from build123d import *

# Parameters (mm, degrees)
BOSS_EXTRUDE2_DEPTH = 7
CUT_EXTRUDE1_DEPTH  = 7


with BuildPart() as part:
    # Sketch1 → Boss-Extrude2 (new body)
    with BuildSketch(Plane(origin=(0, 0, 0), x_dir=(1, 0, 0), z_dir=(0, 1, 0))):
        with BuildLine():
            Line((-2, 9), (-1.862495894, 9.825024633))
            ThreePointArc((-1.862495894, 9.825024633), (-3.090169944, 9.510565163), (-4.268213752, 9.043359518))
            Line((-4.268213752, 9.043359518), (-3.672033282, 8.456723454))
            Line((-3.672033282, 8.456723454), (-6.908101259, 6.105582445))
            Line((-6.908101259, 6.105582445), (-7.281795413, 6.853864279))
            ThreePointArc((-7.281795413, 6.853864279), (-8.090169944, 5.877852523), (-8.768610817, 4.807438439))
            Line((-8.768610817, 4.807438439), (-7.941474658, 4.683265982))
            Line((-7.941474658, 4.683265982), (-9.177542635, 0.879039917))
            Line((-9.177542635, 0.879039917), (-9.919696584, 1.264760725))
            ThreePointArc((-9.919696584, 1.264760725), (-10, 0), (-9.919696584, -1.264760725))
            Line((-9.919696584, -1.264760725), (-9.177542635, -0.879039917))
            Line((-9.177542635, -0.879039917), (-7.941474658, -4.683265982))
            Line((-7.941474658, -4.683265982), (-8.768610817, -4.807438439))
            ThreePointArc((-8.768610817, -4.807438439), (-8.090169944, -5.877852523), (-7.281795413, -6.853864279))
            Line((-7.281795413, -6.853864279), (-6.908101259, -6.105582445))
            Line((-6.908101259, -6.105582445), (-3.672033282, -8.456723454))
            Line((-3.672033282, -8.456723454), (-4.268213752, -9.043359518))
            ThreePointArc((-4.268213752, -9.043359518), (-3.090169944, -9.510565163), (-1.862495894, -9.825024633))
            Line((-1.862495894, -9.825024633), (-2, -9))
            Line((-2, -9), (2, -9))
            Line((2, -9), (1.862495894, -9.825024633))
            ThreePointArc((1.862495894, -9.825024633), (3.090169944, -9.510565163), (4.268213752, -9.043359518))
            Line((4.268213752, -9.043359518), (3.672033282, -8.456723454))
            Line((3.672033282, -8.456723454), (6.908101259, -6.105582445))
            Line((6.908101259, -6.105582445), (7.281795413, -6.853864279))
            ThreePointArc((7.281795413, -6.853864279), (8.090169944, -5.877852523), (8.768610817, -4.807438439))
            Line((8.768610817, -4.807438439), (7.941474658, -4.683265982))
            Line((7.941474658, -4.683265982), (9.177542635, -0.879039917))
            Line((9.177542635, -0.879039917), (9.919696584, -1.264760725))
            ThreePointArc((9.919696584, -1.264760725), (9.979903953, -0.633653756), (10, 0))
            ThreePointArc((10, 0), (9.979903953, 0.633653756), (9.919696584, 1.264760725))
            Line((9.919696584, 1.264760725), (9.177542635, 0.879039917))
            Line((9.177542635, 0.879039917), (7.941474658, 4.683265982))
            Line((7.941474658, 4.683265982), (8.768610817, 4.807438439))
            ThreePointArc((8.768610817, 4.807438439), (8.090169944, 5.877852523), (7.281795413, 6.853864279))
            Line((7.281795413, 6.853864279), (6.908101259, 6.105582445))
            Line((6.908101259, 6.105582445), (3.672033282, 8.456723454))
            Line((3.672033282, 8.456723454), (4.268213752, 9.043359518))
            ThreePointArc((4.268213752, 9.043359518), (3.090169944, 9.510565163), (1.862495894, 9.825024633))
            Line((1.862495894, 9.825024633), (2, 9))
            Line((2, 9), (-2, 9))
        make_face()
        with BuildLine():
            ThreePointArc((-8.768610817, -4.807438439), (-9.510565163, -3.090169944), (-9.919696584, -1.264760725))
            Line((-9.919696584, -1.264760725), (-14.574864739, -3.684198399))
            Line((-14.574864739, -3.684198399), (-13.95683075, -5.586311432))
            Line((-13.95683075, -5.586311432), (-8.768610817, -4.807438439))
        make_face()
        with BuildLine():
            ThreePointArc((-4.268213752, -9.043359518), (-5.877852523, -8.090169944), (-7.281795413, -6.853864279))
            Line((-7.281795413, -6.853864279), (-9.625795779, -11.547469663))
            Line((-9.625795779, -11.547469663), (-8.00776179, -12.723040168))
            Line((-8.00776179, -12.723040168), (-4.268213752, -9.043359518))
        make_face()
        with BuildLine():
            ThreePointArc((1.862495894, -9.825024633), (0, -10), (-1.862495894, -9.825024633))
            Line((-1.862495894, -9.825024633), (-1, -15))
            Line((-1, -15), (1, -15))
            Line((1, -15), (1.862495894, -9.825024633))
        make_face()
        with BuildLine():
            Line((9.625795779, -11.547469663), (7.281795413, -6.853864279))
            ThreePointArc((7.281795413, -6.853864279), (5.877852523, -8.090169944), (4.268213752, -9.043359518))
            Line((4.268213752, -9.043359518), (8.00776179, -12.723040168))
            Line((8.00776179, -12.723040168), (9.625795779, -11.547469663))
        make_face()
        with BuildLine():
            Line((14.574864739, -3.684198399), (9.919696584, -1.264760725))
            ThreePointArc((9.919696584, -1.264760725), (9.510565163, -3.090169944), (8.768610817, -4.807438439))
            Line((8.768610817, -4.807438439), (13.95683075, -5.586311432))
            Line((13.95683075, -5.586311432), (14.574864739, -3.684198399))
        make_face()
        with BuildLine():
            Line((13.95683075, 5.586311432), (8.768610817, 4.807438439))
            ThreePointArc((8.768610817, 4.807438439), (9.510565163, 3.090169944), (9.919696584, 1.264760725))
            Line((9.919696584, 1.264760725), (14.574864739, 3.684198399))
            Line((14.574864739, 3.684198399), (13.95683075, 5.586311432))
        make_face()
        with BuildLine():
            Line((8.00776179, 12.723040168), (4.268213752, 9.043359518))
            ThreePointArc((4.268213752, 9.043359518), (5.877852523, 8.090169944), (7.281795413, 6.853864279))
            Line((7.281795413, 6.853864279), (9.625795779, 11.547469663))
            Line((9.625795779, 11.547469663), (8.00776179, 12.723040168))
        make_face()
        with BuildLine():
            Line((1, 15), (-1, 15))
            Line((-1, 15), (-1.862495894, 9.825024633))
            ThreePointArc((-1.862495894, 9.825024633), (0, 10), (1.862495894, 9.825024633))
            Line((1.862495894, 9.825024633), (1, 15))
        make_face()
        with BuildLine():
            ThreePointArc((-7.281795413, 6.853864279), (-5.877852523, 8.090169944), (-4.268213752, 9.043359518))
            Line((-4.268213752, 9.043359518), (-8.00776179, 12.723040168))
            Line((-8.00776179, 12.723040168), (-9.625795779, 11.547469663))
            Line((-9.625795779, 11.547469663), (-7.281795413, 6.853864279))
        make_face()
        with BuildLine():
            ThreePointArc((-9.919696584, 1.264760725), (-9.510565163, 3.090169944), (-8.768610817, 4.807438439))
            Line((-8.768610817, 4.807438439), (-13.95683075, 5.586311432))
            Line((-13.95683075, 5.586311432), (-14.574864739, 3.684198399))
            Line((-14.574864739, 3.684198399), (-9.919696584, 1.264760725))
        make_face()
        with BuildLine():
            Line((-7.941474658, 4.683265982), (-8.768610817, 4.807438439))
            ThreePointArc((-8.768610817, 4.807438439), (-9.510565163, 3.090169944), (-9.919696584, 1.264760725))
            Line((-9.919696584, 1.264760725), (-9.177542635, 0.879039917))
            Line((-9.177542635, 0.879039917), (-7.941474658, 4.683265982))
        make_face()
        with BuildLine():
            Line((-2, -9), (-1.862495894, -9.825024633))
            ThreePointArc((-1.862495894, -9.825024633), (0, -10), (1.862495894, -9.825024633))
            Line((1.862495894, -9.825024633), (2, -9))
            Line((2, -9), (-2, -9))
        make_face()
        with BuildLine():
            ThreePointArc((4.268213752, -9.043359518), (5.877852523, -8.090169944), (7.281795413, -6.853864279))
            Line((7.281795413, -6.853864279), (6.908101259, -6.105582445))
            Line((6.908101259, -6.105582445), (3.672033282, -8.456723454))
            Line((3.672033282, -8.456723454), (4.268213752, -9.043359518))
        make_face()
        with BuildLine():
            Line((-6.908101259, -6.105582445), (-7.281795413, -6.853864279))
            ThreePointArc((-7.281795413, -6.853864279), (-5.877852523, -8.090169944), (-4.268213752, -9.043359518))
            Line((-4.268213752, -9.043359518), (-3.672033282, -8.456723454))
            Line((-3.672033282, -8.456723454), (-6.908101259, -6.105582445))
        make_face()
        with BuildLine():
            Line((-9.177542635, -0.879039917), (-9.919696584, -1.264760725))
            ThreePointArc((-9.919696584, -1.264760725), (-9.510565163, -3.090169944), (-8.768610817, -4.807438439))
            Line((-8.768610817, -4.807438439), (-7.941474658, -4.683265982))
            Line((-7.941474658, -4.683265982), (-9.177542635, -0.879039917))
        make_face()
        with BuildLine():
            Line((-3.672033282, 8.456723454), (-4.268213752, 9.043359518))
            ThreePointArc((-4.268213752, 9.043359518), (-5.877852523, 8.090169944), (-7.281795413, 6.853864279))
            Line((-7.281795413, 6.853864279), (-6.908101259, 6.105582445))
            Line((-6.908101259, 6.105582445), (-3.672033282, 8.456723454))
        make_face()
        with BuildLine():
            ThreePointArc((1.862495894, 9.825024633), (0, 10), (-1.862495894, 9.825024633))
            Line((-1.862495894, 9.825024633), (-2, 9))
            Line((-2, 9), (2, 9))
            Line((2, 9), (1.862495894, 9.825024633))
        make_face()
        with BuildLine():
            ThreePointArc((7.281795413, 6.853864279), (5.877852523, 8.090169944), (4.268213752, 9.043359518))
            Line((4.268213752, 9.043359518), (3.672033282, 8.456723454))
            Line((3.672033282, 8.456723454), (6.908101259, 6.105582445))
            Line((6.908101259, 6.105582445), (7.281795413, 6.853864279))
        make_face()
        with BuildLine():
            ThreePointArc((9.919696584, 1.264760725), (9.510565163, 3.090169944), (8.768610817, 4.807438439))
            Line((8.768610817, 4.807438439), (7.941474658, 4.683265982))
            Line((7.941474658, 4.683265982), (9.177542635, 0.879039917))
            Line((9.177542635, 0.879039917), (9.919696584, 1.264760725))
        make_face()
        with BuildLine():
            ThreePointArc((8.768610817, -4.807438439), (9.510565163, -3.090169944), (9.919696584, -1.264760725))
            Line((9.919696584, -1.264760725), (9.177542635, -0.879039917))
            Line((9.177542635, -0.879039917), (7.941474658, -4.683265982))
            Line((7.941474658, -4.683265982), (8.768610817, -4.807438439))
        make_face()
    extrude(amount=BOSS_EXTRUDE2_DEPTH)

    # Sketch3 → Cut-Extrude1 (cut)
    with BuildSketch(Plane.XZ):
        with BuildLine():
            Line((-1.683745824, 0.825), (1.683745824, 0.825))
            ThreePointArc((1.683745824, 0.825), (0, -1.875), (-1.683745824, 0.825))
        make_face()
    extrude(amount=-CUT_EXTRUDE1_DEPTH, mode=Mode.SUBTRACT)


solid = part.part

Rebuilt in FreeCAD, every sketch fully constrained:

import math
import FreeCAD as App
import Part
import Sketcher
Q = App.Units.Quantity

doc = App.newDocument("Part")
params = doc.addObject("Spreadsheet::Sheet", "Params")
for row, (alias, value) in enumerate([
    ("sketch1_radius", "10 mm"),
    ("sketch1_width", "2 mm"),
    ("sketch1_length", "2 mm"),
    ("pad1_length", "7 mm"),
    ("pocket1_length", "7 mm"),
], start=1):
    params.set(f"A{row}", alias)
    params.set(f"B{row}", "=" + value)
    params.setAlias(f"B{row}", alias)

body = doc.addObject("PartDesign::Body", "Body")

# Sketch on XZ plane
sketch1 = body.newObject("Sketcher::SketchObject", "Sketch")
sketch1.AttachmentSupport = (doc.getObject("XZ_Plane"), [""])
sketch1.MapMode = "FlatFace"
sketch1.addGeometry([
    Part.ArcOfCircle(Part.Circle(App.Vector(0, 0, 0), App.Vector(0, 0, 1), 10), math.radians(-115.27), math.radians(-100.73)),  # 0
    Part.LineSegment(App.Vector(-4.3, -9, 0), App.Vector(-8, -12.7, 0)),  # 1
    Part.LineSegment(App.Vector(-8, -12.7, 0), App.Vector(-9.6, -11.5, 0)),  # 2
    Part.LineSegment(App.Vector(-9.6, -11.5, 0), App.Vector(-7.3, -6.9, 0)),  # 3
    Part.ArcOfCircle(Part.Circle(App.Vector(0, 0, 0), App.Vector(0, 0, 1), 10), math.radians(-151.27), math.radians(-136.73)),  # 4
    Part.LineSegment(App.Vector(-8.8, -4.8, 0), App.Vector(-14, -5.6, 0)),  # 5
    Part.LineSegment(App.Vector(-14, -5.6, 0), App.Vector(-14.6, -3.7, 0)),  # 6
    Part.LineSegment(App.Vector(-14.6, -3.7, 0), App.Vector(-9.9, -1.3, 0)),  # 7
    Part.ArcOfCircle(Part.Circle(App.Vector(0, 0, 0), App.Vector(0, 0, 1), 10), math.radians(172.73), math.radians(187.27)),  # 8
    Part.LineSegment(App.Vector(-9.9, 1.3, 0), App.Vector(-14.6, 3.7, 0)),  # 9
    Part.LineSegment(App.Vector(-14.6, 3.7, 0), App.Vector(-14, 5.6, 0)),  # 10
    Part.LineSegment(App.Vector(-14, 5.6, 0), App.Vector(-8.8, 4.8, 0)),  # 11
    Part.ArcOfCircle(Part.Circle(App.Vector(0, 0, 0), App.Vector(0, 0, 1), 10), math.radians(136.73), math.radians(151.27)),  # 12
    Part.LineSegment(App.Vector(-7.3, 6.9, 0), App.Vector(-9.6, 11.5, 0)),  # 13
    Part.LineSegment(App.Vector(-9.6, 11.5, 0), App.Vector(-8, 12.7, 0)),  # 14
    Part.LineSegment(App.Vector(-8, 12.7, 0), App.Vector(-4.3, 9, 0)),  # 15
    Part.ArcOfCircle(Part.Circle(App.Vector(0, 0, 0), App.Vector(0, 0, 1), 10), math.radians(100.73), math.radians(115.27)),  # 16
    Part.LineSegment(App.Vector(-1.9, 9.8, 0), App.Vector(-1, 15, 0)),  # 17
    Part.LineSegment(App.Vector(-1, 15, 0), App.Vector(1, 15, 0)),  # 18
    Part.LineSegment(App.Vector(1, 15, 0), App.Vector(1.9, 9.8, 0)),  # 19
    Part.ArcOfCircle(Part.Circle(App.Vector(0, 0, 0), App.Vector(0, 0, 1), 10), math.radians(64.73), math.radians(79.27)),  # 20
    Part.LineSegment(App.Vector(4.3, 9, 0), App.Vector(8, 12.7, 0)),  # 21
    Part.LineSegment(App.Vector(8, 12.7, 0), App.Vector(9.6, 11.5, 0)),  # 22
    Part.LineSegment(App.Vector(9.6, 11.5, 0), App.Vector(7.3, 6.9, 0)),  # 23
    Part.ArcOfCircle(Part.Circle(App.Vector(0, 0, 0), App.Vector(0, 0, 1), 10), math.radians(28.73), math.radians(43.27)),  # 24
    Part.LineSegment(App.Vector(8.8, 4.8, 0), App.Vector(14, 5.6, 0)),  # 25
    Part.LineSegment(App.Vector(14, 5.6, 0), App.Vector(14.6, 3.7, 0)),  # 26
    Part.LineSegment(App.Vector(14.6, 3.7, 0), App.Vector(9.9, 1.3, 0)),  # 27
    Part.ArcOfCircle(Part.Circle(App.Vector(0, 0, 0), App.Vector(0, 0, 1), 10), math.radians(0), math.radians(7.27)),  # 28
    Part.ArcOfCircle(Part.Circle(App.Vector(0, 0, 0), App.Vector(0, 0, 1), 10), math.radians(-7.27), math.radians(0)),  # 29
    Part.LineSegment(App.Vector(9.9, -1.3, 0), App.Vector(14.6, -3.7, 0)),  # 30
    Part.LineSegment(App.Vector(14.6, -3.7, 0), App.Vector(14, -5.6, 0)),  # 31
    Part.LineSegment(App.Vector(14, -5.6, 0), App.Vector(8.8, -4.8, 0)),  # 32
    Part.ArcOfCircle(Part.Circle(App.Vector(0, 0, 0), App.Vector(0, 0, 1), 10), math.radians(-43.27), math.radians(-28.73)),  # 33
    Part.LineSegment(App.Vector(7.3, -6.9, 0), App.Vector(9.6, -11.5, 0)),  # 34
    Part.LineSegment(App.Vector(9.6, -11.5, 0), App.Vector(8, -12.7, 0)),  # 35
    Part.LineSegment(App.Vector(8, -12.7, 0), App.Vector(4.3, -9, 0)),  # 36
    Part.ArcOfCircle(Part.Circle(App.Vector(0, 0, 0), App.Vector(0, 0, 1), 10), math.radians(-79.27), math.radians(-64.73)),  # 37
    Part.LineSegment(App.Vector(1.9, -9.8, 0), App.Vector(1, -15, 0)),  # 38
    Part.LineSegment(App.Vector(1, -15, 0), App.Vector(-1, -15, 0)),  # 39
    Part.LineSegment(App.Vector(-1, -15, 0), App.Vector(-1.9, -9.8, 0)),  # 40
], False)
sketch1.addConstraint([
    Sketcher.Constraint("Coincident", 0, 1, 1, 1),
    Sketcher.Constraint("Coincident", 1, 2, 2, 1),
    Sketcher.Constraint("Coincident", 2, 2, 3, 1),
    Sketcher.Constraint("Coincident", 3, 2, 4, 2),
    Sketcher.Constraint("Coincident", 4, 1, 5, 1),
    Sketcher.Constraint("Coincident", 5, 2, 6, 1),
    Sketcher.Constraint("Coincident", 6, 2, 7, 1),
    Sketcher.Constraint("Coincident", 7, 2, 8, 2),
    Sketcher.Constraint("Coincident", 8, 1, 9, 1),
    Sketcher.Constraint("Coincident", 9, 2, 10, 1),
    Sketcher.Constraint("Coincident", 10, 2, 11, 1),
    Sketcher.Constraint("Coincident", 11, 2, 12, 2),
    Sketcher.Constraint("Coincident", 12, 1, 13, 1),
    Sketcher.Constraint("Coincident", 13, 2, 14, 1),
    Sketcher.Constraint("Coincident", 14, 2, 15, 1),
    Sketcher.Constraint("Coincident", 15, 2, 16, 2),
    Sketcher.Constraint("Coincident", 16, 1, 17, 1),
    Sketcher.Constraint("Coincident", 17, 2, 18, 1),
    Sketcher.Constraint("Coincident", 18, 2, 19, 1),
    Sketcher.Constraint("Coincident", 19, 2, 20, 2),
    Sketcher.Constraint("Coincident", 20, 1, 21, 1),
    Sketcher.Constraint("Coincident", 21, 2, 22, 1),
    Sketcher.Constraint("Coincident", 22, 2, 23, 1),
    Sketcher.Constraint("Coincident", 23, 2, 24, 2),
    Sketcher.Constraint("Coincident", 24, 1, 25, 1),
    Sketcher.Constraint("Coincident", 25, 2, 26, 1),
    Sketcher.Constraint("Coincident", 26, 2, 27, 1),
    Sketcher.Constraint("Coincident", 27, 2, 28, 2),
    Sketcher.Constraint("Tangent", 28, 1, 29, 2),
    Sketcher.Constraint("Coincident", 29, 1, 30, 1),
    Sketcher.Constraint("Coincident", 30, 2, 31, 1),
    Sketcher.Constraint("Coincident", 31, 2, 32, 1),
    Sketcher.Constraint("Coincident", 32, 2, 33, 2),
    Sketcher.Constraint("Coincident", 33, 1, 34, 1),
    Sketcher.Constraint("Coincident", 34, 2, 35, 1),
    Sketcher.Constraint("Coincident", 35, 2, 36, 1),
    Sketcher.Constraint("Coincident", 36, 2, 37, 2),
    Sketcher.Constraint("Coincident", 37, 1, 38, 1),
    Sketcher.Constraint("Coincident", 38, 2, 39, 1),
    Sketcher.Constraint("Coincident", 39, 2, 40, 1),
    Sketcher.Constraint("Coincident", 40, 2, 0, 2),
    Sketcher.Constraint("Horizontal", 18),
    Sketcher.Constraint("Horizontal", 39),
    Sketcher.Constraint("Coincident", 0, 3, -1, 1),
    Sketcher.Constraint("Coincident", 4, 3, -1, 1),
    Sketcher.Constraint("Coincident", 8, 3, -1, 1),
    Sketcher.Constraint("Coincident", 12, 3, -1, 1),
    Sketcher.Constraint("Coincident", 16, 3, -1, 1),
    Sketcher.Constraint("Coincident", 20, 3, -1, 1),
    Sketcher.Constraint("Coincident", 24, 3, -1, 1),
    Sketcher.Constraint("Coincident", 28, 3, -1, 1),
    Sketcher.Constraint("Coincident", 33, 3, -1, 1),
    Sketcher.Constraint("Coincident", 37, 3, -1, 1),
    Sketcher.Constraint("Equal", 0, 4),
    Sketcher.Constraint("Equal", 4, 8),
    Sketcher.Constraint("Equal", 8, 12),
    Sketcher.Constraint("Equal", 12, 16),
    Sketcher.Constraint("Equal", 16, 20),
    Sketcher.Constraint("Equal", 20, 24),
    Sketcher.Constraint("Equal", 24, 28),
    Sketcher.Constraint("Equal", 28, 29),
    Sketcher.Constraint("Equal", 29, 33),
    Sketcher.Constraint("Equal", 33, 37),
    Sketcher.Constraint("Symmetric", 1, 2, 21, 2, -1, 1),
    Sketcher.Constraint("Symmetric", 2, 2, 22, 2, -1, 1),
    Sketcher.Constraint("Symmetric", 5, 2, 25, 2, -1, 1),
    Sketcher.Constraint("Symmetric", 6, 2, 26, 2, -1, 1),
    Sketcher.Constraint("Symmetric", 9, 2, 30, 2, -1, 1),
    Sketcher.Constraint("Symmetric", 10, 2, 31, 2, -1, 1),
    Sketcher.Constraint("Symmetric", 13, 2, 34, 2, -1, 1),
    Sketcher.Constraint("Symmetric", 14, 2, 35, 2, -1, 1),
    Sketcher.Constraint("Symmetric", 17, 2, 38, 2, -1, 1),
    Sketcher.Constraint("Symmetric", 14, 2, 21, 2, -2),
    Sketcher.Constraint("Symmetric", 13, 2, 22, 2, -2),
    Sketcher.Constraint("Symmetric", 10, 2, 25, 2, -2),
    Sketcher.Constraint("Symmetric", 9, 2, 26, 2, -2),
    Sketcher.Constraint("PointOnObject", 28, 1, -1),
    Sketcher.Constraint("Parallel", 1, 21),
    Sketcher.Constraint("Parallel", 3, 23),
    Sketcher.Constraint("Parallel", 5, 25),
    Sketcher.Constraint("Parallel", 7, 27),
    Sketcher.Constraint("Parallel", 9, 30),
    Sketcher.Constraint("Parallel", 11, 32),
    Sketcher.Constraint("Parallel", 13, 34),
    Sketcher.Constraint("Parallel", 15, 36),
    Sketcher.Constraint("Parallel", 17, 38),
    Sketcher.Constraint("Parallel", 19, 40),
    Sketcher.Constraint("Horizontal", 16, 1, 19, 2),
    Sketcher.Constraint("Horizontal", 15, 2, 20, 1),
    Sketcher.Constraint("Horizontal", 12, 1, 23, 2),
    Sketcher.Constraint("Horizontal", 11, 2, 24, 1),
    Sketcher.Constraint("Horizontal", 8, 1, 27, 2),
    Sketcher.Constraint("Horizontal", 37, 1, 40, 2),
    Sketcher.Constraint("Vertical", 18, 2, 38, 2),
    Sketcher.Constraint("Equal", 1, 3),
    Sketcher.Constraint("Equal", 3, 5),
    Sketcher.Constraint("Equal", 2, 6),
    Sketcher.Constraint("Equal", 5, 7),
    Sketcher.Constraint("Equal", 15, 17),
    Sketcher.Constraint("Radius", 0, 10.0),
    Sketcher.Constraint("DistanceX", 18, 1, 18, 2, 2.0),
    Sketcher.Constraint("Angle", 2, Q("144 deg")),
    Sketcher.Constraint("Angle", 6, Q("108 deg")),
    Sketcher.Constraint("Distance", 2, 2.0),
    Sketcher.Constraint("DistanceY", -1, 1, 17, 2, 15.0),
    Sketcher.Constraint("DistanceX", 2, 2, 3, 2, 2.344),
    Sketcher.Constraint("DistanceY", 6, 2, -1, 1, 3.684198),
    Sketcher.Constraint("DistanceY", 1, 2, 4, 1, 7.915602),
    Sketcher.Constraint("DistanceX", 7, 2, 3, 2, 2.637901),
    Sketcher.Constraint("DistanceY", 0, 1, 7, 2, 7.778599),
])
sketch1.setExpression("Constraints[99]", "Params.sketch1_radius")
sketch1.setExpression("Constraints[100]", "Params.sketch1_width")
sketch1.setExpression("Constraints[103]", "Params.sketch1_length")
pad1 = body.newObject("PartDesign::Pad", "Pad")
pad1.Profile = sketch1
pad1.setExpression("Length", "Params.pad1_length")
pad1.Reversed = True

# Sketch on XZ plane
sketch2 = body.newObject("Sketcher::SketchObject", "Sketch001")
sketch2.AttachmentSupport = (doc.getObject("XZ_Plane"), [""])
sketch2.MapMode = "FlatFace"
sketch2.addGeometry([
    Part.LineSegment(App.Vector(1.7, 0.8, 0), App.Vector(-1.7, 0.8, 0)),
    Part.ArcOfCircle(Part.Circle(App.Vector(0, 0, 0), App.Vector(0, 0, 1), 1.9), math.radians(154), math.radians(386)),
], False)
sketch2.addConstraint([
    Sketcher.Constraint("Coincident", 0, 1, 1, 2),
    Sketcher.Constraint("Coincident", 1, 1, 0, 2),
    Sketcher.Constraint("Horizontal", 0),
    Sketcher.Constraint("Coincident", 1, 3, -1, 1),
    Sketcher.Constraint("Radius", 1, 1.875),
    Sketcher.Constraint("DistanceY", -1, 1, 0, 1, 0.825),
])
pocket1 = body.newObject("PartDesign::Pocket", "Pocket")
pocket1.Profile = sketch2
pocket1.setExpression("Length", "Params.pocket1_length")

doc.recompute()
